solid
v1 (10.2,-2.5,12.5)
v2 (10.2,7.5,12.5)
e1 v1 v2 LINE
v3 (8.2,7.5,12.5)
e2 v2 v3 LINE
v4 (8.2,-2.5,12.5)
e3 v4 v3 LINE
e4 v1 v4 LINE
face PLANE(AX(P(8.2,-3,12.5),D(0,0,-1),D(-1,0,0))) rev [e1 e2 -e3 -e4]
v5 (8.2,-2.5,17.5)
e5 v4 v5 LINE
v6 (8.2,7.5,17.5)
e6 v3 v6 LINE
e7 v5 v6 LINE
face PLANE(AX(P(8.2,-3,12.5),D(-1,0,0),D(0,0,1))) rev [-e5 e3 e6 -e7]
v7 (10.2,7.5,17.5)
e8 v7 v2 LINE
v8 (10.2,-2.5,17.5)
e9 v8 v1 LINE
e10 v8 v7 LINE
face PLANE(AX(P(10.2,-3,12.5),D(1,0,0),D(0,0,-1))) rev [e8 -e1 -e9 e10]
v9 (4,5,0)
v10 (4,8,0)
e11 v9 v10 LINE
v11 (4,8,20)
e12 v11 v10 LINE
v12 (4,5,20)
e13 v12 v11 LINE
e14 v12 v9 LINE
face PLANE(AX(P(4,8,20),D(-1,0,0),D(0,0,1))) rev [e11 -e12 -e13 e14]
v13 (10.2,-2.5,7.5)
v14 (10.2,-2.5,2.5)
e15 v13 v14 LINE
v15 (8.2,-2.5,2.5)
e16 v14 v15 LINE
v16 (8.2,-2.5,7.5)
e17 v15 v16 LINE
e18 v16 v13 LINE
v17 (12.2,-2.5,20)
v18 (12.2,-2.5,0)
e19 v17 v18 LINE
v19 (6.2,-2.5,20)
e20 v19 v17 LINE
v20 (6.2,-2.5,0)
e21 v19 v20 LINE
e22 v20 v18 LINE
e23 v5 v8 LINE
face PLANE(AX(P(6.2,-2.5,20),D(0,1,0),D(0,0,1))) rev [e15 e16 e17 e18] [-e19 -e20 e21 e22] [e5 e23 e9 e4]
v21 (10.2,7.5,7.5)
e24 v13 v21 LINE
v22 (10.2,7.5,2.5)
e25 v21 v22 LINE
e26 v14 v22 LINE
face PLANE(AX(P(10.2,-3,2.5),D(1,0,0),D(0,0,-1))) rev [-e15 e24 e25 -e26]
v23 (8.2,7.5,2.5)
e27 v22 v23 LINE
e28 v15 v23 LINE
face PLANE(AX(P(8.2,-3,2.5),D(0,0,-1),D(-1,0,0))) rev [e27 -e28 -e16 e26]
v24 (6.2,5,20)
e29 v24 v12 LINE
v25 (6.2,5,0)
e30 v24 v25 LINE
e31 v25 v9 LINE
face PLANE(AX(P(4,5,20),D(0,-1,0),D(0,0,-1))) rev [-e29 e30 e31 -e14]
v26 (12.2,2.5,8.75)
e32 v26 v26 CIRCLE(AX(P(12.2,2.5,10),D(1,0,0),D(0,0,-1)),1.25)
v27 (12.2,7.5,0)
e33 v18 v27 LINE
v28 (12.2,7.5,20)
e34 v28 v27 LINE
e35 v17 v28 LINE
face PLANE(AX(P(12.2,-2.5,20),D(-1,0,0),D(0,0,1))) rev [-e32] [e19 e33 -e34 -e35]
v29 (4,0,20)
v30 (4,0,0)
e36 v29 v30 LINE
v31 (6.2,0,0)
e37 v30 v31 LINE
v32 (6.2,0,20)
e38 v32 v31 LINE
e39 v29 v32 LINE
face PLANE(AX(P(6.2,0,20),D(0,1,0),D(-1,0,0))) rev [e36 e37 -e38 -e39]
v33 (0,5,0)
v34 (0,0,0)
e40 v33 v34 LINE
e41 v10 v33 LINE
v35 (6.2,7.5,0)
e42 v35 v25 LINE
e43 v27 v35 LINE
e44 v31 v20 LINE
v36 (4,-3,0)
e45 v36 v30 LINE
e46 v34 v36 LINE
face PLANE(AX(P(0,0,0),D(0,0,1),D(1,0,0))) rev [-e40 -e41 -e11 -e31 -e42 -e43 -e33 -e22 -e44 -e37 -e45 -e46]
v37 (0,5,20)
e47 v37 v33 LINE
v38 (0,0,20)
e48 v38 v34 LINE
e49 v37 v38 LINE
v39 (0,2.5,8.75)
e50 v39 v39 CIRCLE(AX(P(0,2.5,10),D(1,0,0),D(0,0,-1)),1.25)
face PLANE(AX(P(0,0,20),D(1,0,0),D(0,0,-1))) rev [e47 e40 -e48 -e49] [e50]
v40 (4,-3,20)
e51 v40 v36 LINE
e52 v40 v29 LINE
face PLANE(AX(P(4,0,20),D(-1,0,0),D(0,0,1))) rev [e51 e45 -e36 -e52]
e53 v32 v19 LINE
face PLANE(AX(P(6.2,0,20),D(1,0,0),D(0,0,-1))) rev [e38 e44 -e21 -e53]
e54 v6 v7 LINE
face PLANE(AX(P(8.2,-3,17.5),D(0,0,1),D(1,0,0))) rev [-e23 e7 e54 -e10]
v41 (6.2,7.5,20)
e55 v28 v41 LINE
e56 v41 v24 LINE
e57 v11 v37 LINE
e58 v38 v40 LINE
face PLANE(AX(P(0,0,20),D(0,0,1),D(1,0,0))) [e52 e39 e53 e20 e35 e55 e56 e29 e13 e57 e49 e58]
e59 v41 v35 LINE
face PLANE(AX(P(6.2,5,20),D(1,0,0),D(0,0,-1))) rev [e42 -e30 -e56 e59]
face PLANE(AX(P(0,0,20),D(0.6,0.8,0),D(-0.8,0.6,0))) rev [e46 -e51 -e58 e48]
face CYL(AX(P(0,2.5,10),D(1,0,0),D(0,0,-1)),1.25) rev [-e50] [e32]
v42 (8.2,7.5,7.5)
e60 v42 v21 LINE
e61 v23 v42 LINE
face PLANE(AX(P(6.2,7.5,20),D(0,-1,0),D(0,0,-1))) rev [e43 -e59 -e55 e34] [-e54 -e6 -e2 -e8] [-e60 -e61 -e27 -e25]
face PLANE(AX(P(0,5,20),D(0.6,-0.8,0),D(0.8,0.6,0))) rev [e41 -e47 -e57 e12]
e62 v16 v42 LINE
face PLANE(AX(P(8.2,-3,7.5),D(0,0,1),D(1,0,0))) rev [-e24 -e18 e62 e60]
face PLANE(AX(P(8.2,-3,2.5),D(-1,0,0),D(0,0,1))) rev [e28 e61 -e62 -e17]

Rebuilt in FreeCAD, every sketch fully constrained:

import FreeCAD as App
import Part
import Sketcher


def add_polygon(sketch, points):
    """Adds a closed chain of lines whose ends are joined by coincident constraints."""
    first, n = sketch.GeometryCount, len(points)
    for a, b in zip(points, points[1:] + points[:1]):
        sketch.addGeometry(Part.LineSegment(App.Vector(*a, 0), App.Vector(*b, 0)), False)
    for i in range(n):
        sketch.addConstraint(Sketcher.Constraint("Coincident", first + i, 2, first + (i + 1) % n, 1))

doc = App.newDocument("Part")
params = doc.addObject("Spreadsheet::Sheet", "Params")
for row, (alias, value) in enumerate([
    ("sketch1_width", "6 mm"),
    ("sketch1_height", "5 mm"),
    ("sketch1_height2", "3 mm"),
    ("sketch1_height3", "10 mm"),
    ("sketch1_length", "5 mm"),
    ("pad1_length", "20 mm"),
    ("sketch2_diameter", "2.5 mm"),
    ("sketch3_width", "2 mm"),
    ("sketch3_height", "5 mm"),
], start=1):
    params.set(f"A{row}", alias)
    params.set(f"B{row}", "=" + value)
    params.setAlias(f"B{row}", alias)

body = doc.addObject("PartDesign::Body", "Body")

# Sketch on XY plane
sketch1 = doc.addObject("Sketcher::SketchObject", "Sketch")
body.addObject(sketch1)
sketch1.AttachmentSupport = (doc.XY_Plane, [""])
sketch1.MapMode = "FlatFace"
add_polygon(sketch1, [(0, 5), (0, 0), (4, -3), (4, 0), (6.2, 0), (6.2, -2.5), (12.2, -2.5), (12.2, 7.5), (6.2, 7.5), (6.2, 5), (4, 5), (4, 8)])  # lines 0-11
sketch1.addConstraint([
    Sketcher.Constraint("Vertical", 0),
    Sketcher.Constraint("Vertical", 2),
    Sketcher.Constraint("Horizontal", 3),
    Sketcher.Constraint("Vertical", 4),
    Sketcher.Constraint("Horizontal", 5),
    Sketcher.Constraint("Vertical", 6),
    Sketcher.Constraint("Horizontal", 7),
    Sketcher.Constraint("Vertical", 8),
    Sketcher.Constraint("Horizontal", 9),
    Sketcher.Constraint("Vertical", 10),
    Sketcher.Constraint("Coincident", 0, 2, -1, 1),
    Sketcher.Constraint("PointOnObject", 2, 2, -1),
    Sketcher.Constraint("Horizontal", 9, 2, 11, 2),
    Sketcher.Constraint("Vertical", 4, 2, 7, 2),
    Sketcher.Constraint("Vertical", 2, 2, 9, 2),
    Sketcher.Constraint("Equal", 4, 8),
    Sketcher.Constraint("Equal", 2, 10),
    Sketcher.Constraint("DistanceX", 5, 1, 5, 2, 6.0),
    Sketcher.Constraint("DistanceY", 0, 2, 0, 1, 5.0),
    Sketcher.Constraint("DistanceY", 2, 1, 2, 2, 3.0),
    Sketcher.Constraint("DistanceY", 6, 1, 6, 2, 10.0),
    Sketcher.Constraint("Distance", 1, 5.0),
    Sketcher.Constraint("DistanceX", 3, 1, 3, 2, 2.2),
])
sketch1.setExpression("Constraints[29]", "Params.sketch1_width")
sketch1.setExpression("Constraints[30]", "Params.sketch1_height")
sketch1.setExpression("Constraints[31]", "Params.sketch1_height2")
sketch1.setExpression("Constraints[32]", "Params.sketch1_height3")
sketch1.setExpression("Constraints[33]", "Params.sketch1_length")
pad1 = doc.addObject("PartDesign::Pad", "Pad")
body.addObject(pad1)
pad1.Profile = sketch1
pad1.setExpression("Length", "Params.pad1_length")

# Sketch on YZ plane
sketch2 = doc.addObject("Sketcher::SketchObject", "Sketch001")
body.addObject(sketch2)
sketch2.AttachmentSupport = (doc.YZ_Plane, [""])
sketch2.MapMode = "FlatFace"
sketch2.AttachmentOffset = App.Placement(App.Vector(0, 0, 12.2), App.Rotation())
sketch2.addGeometry(Part.Circle(App.Vector(2.5, 10, 0), App.Vector(0, 0, 1), 1.2), False)
sketch2.addConstraint([
    Sketcher.Constraint("Diameter", 0, 2.5),
    Sketcher.Constraint("DistanceY", -1, 1, 0, 3, 10.0),
    Sketcher.Constraint("DistanceX", -1, 1, 0, 3, 2.5),
])
sketch2.setExpression("Constraints[0]", "Params.sketch2_diameter")
pocket1 = doc.addObject("PartDesign::Pocket", "Pocket")
body.addObject(pocket1)
pocket1.Profile = sketch2
pocket1.Type = "ThroughAll"

# Sketch on XZ plane
sketch3 = doc.addObject("Sketcher::SketchObject", "Sketch002")
body.addObject(sketch3)
sketch3.AttachmentSupport = (doc.XZ_Plane, [""])
sketch3.MapMode = "FlatFace"
sketch3.AttachmentOffset = App.Placement(App.Vector(0, 0, -7.5), App.Rotation())
add_polygon(sketch3, [(8.2, 12.5), (8.2, 17.5), (10.2, 17.5), (10.2, 12.5)])  # lines 0-3
add_polygon(sketch3, [(8.2, 2.5), (8.2, 7.5), (10.2, 7.5), (10.2, 2.5)])  # lines 4-7
sketch3.addConstraint([
    Sketcher.Constraint("Vertical", 0),
    Sketcher.Constraint("Horizontal", 1),
    Sketcher.Constraint("Vertical", 2),
    Sketcher.Constraint("Horizontal", 3),
    Sketcher.Constraint("Vertical", 4),
    Sketcher.Constraint("Horizontal", 5),
    Sketcher.Constraint("Vertical", 6),
    Sketcher.Constraint("Horizontal", 7),
    Sketcher.Constraint("Vertical", 3, 2, 4, 2),
    Sketcher.Constraint("Vertical", 2, 2, 5, 2),
    Sketcher.Constraint("Equal", 2, 4),
    Sketcher.Constraint("DistanceX", 1, 1, 1, 2, 2.0),
    Sketcher.Constraint("DistanceY", 0, 1, 0, 2, 5.0),
    Sketcher.Constraint("DistanceY", 4, 2, 3, 2, 5.0),
    Sketcher.Constraint("DistanceX", -1, 1, 0, 2, 8.2),
    Sketcher.Constraint("DistanceY", -1, 1, 0, 2, 17.5),
])
sketch3.setExpression("Constraints[19]", "Params.sketch3_width")
sketch3.setExpression("Constraints[20]", "Params.sketch3_height")
pocket2 = doc.addObject("PartDesign::Pocket", "Pocket001")
body.addObject(pocket2)
pocket2.Profile = sketch3
pocket2.Type = "ThroughAll"
pocket2.Reversed = True

doc.recompute()
